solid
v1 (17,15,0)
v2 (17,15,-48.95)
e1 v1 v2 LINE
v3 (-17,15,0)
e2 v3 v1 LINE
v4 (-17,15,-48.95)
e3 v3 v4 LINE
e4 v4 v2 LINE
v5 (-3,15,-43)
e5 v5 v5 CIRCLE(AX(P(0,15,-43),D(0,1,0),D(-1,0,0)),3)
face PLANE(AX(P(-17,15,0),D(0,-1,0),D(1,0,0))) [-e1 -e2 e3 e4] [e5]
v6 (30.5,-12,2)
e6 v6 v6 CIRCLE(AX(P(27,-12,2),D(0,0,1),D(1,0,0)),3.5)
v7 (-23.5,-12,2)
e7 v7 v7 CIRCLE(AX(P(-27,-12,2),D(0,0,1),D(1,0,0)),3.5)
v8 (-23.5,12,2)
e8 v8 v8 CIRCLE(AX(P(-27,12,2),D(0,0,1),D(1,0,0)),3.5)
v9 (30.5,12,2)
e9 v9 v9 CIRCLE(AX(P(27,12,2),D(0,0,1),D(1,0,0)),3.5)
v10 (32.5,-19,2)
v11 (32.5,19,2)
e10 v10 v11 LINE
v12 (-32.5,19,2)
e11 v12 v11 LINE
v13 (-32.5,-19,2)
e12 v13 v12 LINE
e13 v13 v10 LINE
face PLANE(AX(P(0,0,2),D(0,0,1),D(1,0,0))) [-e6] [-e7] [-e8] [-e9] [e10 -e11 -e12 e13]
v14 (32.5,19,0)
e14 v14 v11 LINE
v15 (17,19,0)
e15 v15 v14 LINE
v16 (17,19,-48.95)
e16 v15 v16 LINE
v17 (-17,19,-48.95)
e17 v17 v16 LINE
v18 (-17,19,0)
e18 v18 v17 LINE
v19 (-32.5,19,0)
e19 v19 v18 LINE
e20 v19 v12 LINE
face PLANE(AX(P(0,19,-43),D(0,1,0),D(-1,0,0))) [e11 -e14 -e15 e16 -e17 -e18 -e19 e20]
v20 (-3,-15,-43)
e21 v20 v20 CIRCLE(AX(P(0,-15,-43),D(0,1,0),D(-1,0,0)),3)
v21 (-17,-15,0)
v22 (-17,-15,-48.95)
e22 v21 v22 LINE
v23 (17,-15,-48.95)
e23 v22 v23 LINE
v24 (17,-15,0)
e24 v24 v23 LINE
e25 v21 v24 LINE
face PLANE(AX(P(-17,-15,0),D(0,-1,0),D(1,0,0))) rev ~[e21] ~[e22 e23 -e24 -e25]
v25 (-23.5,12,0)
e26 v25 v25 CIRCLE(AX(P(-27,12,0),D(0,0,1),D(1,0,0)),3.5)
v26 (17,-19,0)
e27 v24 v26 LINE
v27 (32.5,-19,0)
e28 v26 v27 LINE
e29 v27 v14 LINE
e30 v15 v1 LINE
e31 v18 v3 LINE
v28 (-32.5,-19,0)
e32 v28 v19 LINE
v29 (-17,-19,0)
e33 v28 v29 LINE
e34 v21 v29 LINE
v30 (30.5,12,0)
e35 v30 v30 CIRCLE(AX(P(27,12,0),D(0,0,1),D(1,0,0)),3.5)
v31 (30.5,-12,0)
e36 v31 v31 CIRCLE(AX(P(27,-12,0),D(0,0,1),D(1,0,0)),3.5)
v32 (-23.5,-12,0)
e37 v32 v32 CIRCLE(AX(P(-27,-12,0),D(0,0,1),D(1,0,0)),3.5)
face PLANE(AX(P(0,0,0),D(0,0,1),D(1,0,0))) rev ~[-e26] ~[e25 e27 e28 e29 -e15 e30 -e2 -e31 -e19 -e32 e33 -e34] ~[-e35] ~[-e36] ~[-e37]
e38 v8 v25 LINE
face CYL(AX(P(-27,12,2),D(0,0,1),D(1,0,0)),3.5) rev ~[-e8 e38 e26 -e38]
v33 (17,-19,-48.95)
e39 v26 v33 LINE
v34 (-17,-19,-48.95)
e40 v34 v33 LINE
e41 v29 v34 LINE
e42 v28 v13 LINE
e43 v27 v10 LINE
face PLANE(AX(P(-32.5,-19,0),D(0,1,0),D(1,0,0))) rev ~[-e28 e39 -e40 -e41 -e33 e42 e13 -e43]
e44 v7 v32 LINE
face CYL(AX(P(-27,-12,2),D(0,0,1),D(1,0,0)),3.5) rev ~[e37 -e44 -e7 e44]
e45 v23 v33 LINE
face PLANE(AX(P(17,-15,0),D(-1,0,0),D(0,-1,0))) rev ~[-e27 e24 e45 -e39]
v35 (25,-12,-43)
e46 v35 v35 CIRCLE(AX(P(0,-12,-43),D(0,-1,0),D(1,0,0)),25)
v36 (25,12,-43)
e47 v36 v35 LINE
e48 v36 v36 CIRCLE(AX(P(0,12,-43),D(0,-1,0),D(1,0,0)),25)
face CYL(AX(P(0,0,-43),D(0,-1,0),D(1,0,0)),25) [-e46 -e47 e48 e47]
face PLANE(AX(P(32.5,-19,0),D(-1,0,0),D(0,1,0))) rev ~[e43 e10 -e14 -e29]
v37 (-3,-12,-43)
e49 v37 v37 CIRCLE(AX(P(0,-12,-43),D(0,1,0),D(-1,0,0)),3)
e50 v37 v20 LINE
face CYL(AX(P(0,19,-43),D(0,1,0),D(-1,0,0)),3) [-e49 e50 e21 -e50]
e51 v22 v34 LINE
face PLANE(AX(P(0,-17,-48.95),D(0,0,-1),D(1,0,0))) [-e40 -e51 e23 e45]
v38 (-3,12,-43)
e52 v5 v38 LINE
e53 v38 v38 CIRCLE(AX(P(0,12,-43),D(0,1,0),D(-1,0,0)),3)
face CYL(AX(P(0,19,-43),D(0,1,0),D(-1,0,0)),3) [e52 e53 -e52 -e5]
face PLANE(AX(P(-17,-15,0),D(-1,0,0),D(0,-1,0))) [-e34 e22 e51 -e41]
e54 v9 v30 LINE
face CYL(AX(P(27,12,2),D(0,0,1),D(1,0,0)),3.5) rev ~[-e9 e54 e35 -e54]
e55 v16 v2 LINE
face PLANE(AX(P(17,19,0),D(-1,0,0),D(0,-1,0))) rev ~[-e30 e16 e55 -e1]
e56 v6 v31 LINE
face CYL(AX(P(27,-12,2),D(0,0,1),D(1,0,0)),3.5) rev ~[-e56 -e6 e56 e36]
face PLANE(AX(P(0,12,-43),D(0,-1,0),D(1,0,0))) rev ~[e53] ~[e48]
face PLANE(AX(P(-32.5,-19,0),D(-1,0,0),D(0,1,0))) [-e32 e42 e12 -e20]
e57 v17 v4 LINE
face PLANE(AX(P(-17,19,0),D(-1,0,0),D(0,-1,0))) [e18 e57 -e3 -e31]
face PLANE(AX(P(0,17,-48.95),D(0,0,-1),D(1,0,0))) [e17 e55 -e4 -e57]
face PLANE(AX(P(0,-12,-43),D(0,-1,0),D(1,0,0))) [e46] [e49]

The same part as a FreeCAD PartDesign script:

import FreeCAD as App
import Part
import Sketcher


def add_polygon(sketch, points):
    """Adds a closed chain of lines whose ends are joined by coincident constraints."""
    first, n = sketch.GeometryCount, len(points)
    for a, b in zip(points, points[1:] + points[:1]):
        sketch.addGeometry(Part.LineSegment(App.Vector(*a, 0), App.Vector(*b, 0)), False)
    for i in range(n):
        sketch.addConstraint(Sketcher.Constraint("Coincident", first + i, 2, first + (i + 1) % n, 1))

doc = App.newDocument("Part")
params = doc.addObject("Spreadsheet::Sheet", "Params")
for row, (alias, value) in enumerate([
    ("sketch1_width", "65 mm"),
    ("sketch1_height", "38 mm"),
    ("pad1_length", "2 mm"),
    ("sketch2_width", "34 mm"),
    ("sketch2_height", "4 mm"),
    ("pad2_length", "48.95 mm"),
    ("sketch3_diameter", "7 mm"),
    ("pocket1_length", "3000 mm"),
    ("sketch4_diameter", "6 mm"),
    ("pad3_length", "38 mm"),
    ("sketch5_diameter", "50 mm"),
    ("pad4_length", "12 mm"),
    ("pad4_length2", "12 mm"),
    ("sketch6_diameter", "50 mm"),
    ("pad5_length", "24 mm"),
], start=1):
    params.set(f"A{row}", alias)
    params.set(f"B{row}", "=" + value)
    params.setAlias(f"B{row}", alias)

body = doc.addObject("PartDesign::Body", "Body")

sketch1 = doc.addObject("Sketcher::SketchObject", "Sketch")
body.addObject(sketch1)
sketch1.AttachmentSupport = (doc.XY_Plane, [""])
sketch1.MapMode = "FlatFace"
add_polygon(sketch1, [(-32.5, 19), (-32.5, -19), (32.5, -19), (32.5, 19)])
sketch1.addConstraint([
    Sketcher.Constraint("Vertical", 0),
    Sketcher.Constraint("Horizontal", 1),
    Sketcher.Constraint("Vertical", 2),
    Sketcher.Constraint("Horizontal", 3),
    Sketcher.Constraint("Symmetric", 0, 2, 2, 2, -1, 1),
    Sketcher.Constraint("DistanceX", 1, 1, 1, 2, 65.0),
    Sketcher.Constraint("DistanceY", 0, 2, 0, 1, 38.0),
])
sketch1.setExpression("Constraints[9]", "Params.sketch1_width")
sketch1.setExpression("Constraints[10]", "Params.sketch1_height")
pad1 = doc.addObject("PartDesign::Pad", "Pad")
body.addObject(pad1)
pad1.Profile = sketch1
pad1.setExpression("Length", "Params.pad1_length")

sketch2 = doc.addObject("Sketcher::SketchObject", "Sketch001")
body.addObject(sketch2)
sketch2.AttachmentSupport = (doc.XY_Plane, [""])
sketch2.MapMode = "FlatFace"
add_polygon(sketch2, [(-17, -19), (-17, -15), (17, -15), (17, -19)])
add_polygon(sketch2, [(-17, 15), (-17, 19), (17, 19), (17, 15)])
sketch2.addConstraint([
    Sketcher.Constraint("Vertical", 0),
    Sketcher.Constraint("Horizontal", 1),
    Sketcher.Constraint("Vertical", 2),
    Sketcher.Constraint("Horizontal", 3),
    Sketcher.Constraint("Vertical", 4),
    Sketcher.Constraint("Horizontal", 5),
    Sketcher.Constraint("Vertical", 6),
    Sketcher.Constraint("Horizontal", 7),
    Sketcher.Constraint("Symmetric", 2, 2, 4, 2, -1, 1),
    Sketcher.Constraint("Symmetric", 0, 2, 6, 2, -1, 1),
    Sketcher.Constraint("Vertical", 3, 2, 4, 2),
    Sketcher.Constraint("DistanceX", 1, 1, 1, 2, 34.0),
    Sketcher.Constraint("DistanceY", 0, 1, 0, 2, 4.0),
    Sketcher.Constraint("DistanceY", 0, 2, -1, 1, 15.0),
])
sketch2.setExpression("Constraints[19]", "Params.sketch2_width")
sketch2.setExpression("Constraints[20]", "Params.sketch2_height")
pad2 = doc.addObject("PartDesign::Pad", "Pad001")
body.addObject(pad2)
pad2.Profile = sketch2
pad2.setExpression("Length", "Params.pad2_length")
pad2.Reversed = True

sketch3 = doc.addObject("Sketcher::SketchObject", "Sketch002")
body.addObject(sketch3)
sketch3.AttachmentSupport = (doc.XY_Plane, [""])
sketch3.MapMode = "FlatFace"
sketch3.AttachmentOffset = App.Placement(App.Vector(0, 0, 2), App.Rotation())
sketch3.addGeometry([
    Part.Circle(App.Vector(27, 12, 0), App.Vector(0, 0, 1), 3.5),
    Part.Circle(App.Vector(27, -12, 0), App.Vector(0, 0, 1), 3.5),
    Part.Circle(App.Vector(-27, -12, 0), App.Vector(0, 0, 1), 3.5),
    Part.Circle(App.Vector(-27, 12, 0), App.Vector(0, 0, 1), 3.5),
], False)
sketch3.addConstraint([
    Sketcher.Constraint("Equal", 0, 1),
    Sketcher.Constraint("Equal", 1, 2),
    Sketcher.Constraint("Equal", 2, 3),
    Sketcher.Constraint("Symmetric", 0, 3, 2, 3, -1, 1),
    Sketcher.Constraint("Symmetric", 1, 3, 3, 3, -1, 1),
    Sketcher.Constraint("Symmetric", 1, 3, 2, 3, -2),
    Sketcher.Constraint("Diameter", 0, 7.0),
    Sketcher.Constraint("DistanceX", -1, 1, 0, 3, 27.0),
    Sketcher.Constraint("DistanceY", -1, 1, 0, 3, 12.0),
])
sketch3.setExpression("Constraints[6]", "Params.sketch3_diameter")
pocket1 = doc.addObject("PartDesign::Pocket", "Pocket")
body.addObject(pocket1)
pocket1.Profile = sketch3
pocket1.setExpression("Length", "Params.pocket1_length")

sketch4 = doc.addObject("Sketcher::SketchObject", "Sketch003")
body.addObject(sketch4)
sketch4.AttachmentSupport = (doc.XZ_Plane, [""])
sketch4.MapMode = "FlatFace"
sketch4.AttachmentOffset = App.Placement(App.Vector(0, 0, -19), App.Rotation())
sketch4.addGeometry(Part.Circle(App.Vector(0, -43, 0), App.Vector(0, 0, 1), 3), False)
sketch4.addConstraint([
    Sketcher.Constraint("PointOnObject", 0, 3, -2),
    Sketcher.Constraint("Diameter", 0, 6.0),
    Sketcher.Constraint("DistanceY", 0, 3, -1, 1, 43.0),
])
sketch4.setExpression("Constraints[1]", "Params.sketch4_diameter")
pad3 = doc.addObject("PartDesign::Pad", "Pad002")
body.addObject(pad3)
pad3.Profile = sketch4
pad3.setExpression("Length", "Params.pad3_length")

sketch5 = doc.addObject("Sketcher::SketchObject", "Sketch004")
body.addObject(sketch5)
sketch5.AttachmentSupport = (doc.XZ_Plane, [""])
sketch5.MapMode = "FlatFace"
sketch5.addGeometry(Part.Circle(App.Vector(0, -43, 0), App.Vector(0, 0, 1), 25), False)
sketch5.addConstraint([
    Sketcher.Constraint("PointOnObject", 0, 3, -2),
    Sketcher.Constraint("Diameter", 0, 50.0),
    Sketcher.Constraint("DistanceY", 0, 3, -1, 1, 43.0),
])
sketch5.setExpression("Constraints[1]", "Params.sketch5_diameter")
pad4 = doc.addObject("PartDesign::Pad", "Pad003")
body.addObject(pad4)
pad4.Profile = sketch5
pad4.Type = "TwoLengths"
pad4.setExpression("Length", "Params.pad4_length")
pad4.setExpression("Length2", "Params.pad4_length2")
body2 = doc.addObject("PartDesign::Body", "Body001")

sketch6 = doc.addObject("Sketcher::SketchObject", "Sketch005")
body2.addObject(sketch6)
sketch6.AttachmentSupport = (doc.getObject("XZ_Plane001"), [""])
sketch6.MapMode = "FlatFace"
sketch6.addGeometry(Part.Circle(App.Vector(0, -43, 0), App.Vector(0, 0, 1), 25), False)
sketch6.addConstraint([
    Sketcher.Constraint("PointOnObject", 0, 3, -2),
    Sketcher.Constraint("Diameter", 0, 50.0),
    Sketcher.Constraint("DistanceY", 0, 3, -1, 1, 43.0),
])
sketch6.setExpression("Constraints[1]", "Params.sketch6_diameter")
pad5 = doc.addObject("PartDesign::Pad", "Pad004")
body2.addObject(pad5)
pad5.Profile = sketch6
pad5.setExpression("Length", "Params.pad5_length")
pad5.Midplane = True
body2.Visibility = False

doc.recompute()
